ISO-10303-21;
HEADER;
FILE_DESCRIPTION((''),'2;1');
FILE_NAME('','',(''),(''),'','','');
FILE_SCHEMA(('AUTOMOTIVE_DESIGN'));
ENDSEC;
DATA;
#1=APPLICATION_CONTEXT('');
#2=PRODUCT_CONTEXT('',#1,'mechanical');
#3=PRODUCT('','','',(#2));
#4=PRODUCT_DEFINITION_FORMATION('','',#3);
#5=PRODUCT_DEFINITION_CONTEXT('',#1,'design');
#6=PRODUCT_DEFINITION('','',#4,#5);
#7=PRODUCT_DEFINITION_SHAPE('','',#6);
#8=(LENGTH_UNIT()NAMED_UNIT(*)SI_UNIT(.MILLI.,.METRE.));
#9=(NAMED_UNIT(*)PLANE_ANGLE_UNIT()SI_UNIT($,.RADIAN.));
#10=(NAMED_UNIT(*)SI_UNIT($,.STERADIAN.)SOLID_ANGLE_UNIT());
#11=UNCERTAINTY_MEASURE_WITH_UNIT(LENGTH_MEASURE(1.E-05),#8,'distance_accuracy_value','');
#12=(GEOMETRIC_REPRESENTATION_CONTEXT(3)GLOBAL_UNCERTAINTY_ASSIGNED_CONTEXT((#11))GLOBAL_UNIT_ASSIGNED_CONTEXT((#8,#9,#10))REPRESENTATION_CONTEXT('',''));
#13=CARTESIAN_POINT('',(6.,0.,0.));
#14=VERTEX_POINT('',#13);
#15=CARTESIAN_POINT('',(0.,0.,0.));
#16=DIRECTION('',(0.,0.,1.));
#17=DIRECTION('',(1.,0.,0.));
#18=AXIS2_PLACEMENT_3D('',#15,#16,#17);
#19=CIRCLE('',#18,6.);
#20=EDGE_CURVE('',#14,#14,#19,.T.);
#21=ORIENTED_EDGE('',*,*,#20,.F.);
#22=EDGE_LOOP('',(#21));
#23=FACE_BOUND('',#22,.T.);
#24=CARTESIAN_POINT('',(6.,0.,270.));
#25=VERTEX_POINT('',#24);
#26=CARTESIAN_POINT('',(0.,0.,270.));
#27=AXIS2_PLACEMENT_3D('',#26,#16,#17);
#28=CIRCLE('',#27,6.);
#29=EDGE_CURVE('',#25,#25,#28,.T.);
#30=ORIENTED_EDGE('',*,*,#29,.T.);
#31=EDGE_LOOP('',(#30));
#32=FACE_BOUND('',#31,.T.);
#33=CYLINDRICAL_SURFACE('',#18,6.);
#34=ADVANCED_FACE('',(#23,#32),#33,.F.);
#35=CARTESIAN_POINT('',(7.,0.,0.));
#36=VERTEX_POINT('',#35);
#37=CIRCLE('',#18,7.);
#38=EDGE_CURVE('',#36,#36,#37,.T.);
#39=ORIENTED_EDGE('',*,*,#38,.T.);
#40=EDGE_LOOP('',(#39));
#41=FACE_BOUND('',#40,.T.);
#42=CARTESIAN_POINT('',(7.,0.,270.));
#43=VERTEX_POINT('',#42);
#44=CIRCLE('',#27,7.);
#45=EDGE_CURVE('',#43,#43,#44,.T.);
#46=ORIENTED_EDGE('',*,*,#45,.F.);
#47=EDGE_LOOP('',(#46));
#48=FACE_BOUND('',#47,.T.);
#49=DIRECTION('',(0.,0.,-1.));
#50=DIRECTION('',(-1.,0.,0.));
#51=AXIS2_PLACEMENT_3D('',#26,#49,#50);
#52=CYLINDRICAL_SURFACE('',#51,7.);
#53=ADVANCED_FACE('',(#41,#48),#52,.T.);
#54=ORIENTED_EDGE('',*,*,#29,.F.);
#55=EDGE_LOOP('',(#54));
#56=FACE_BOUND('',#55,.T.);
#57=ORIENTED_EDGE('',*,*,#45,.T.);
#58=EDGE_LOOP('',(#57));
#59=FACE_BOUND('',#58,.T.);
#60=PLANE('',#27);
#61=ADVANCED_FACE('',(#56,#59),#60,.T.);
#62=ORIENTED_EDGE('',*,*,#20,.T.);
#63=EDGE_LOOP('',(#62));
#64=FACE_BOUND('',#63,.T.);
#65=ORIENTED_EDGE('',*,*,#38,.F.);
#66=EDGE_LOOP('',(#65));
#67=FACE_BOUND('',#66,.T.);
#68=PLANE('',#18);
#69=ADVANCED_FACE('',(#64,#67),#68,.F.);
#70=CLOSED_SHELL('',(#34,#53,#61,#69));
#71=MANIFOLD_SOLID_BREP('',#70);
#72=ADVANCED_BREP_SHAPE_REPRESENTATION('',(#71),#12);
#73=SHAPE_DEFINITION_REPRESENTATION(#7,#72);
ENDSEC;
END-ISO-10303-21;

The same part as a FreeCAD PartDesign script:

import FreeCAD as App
import Part
import Sketcher
from FreeCAD import Vector
Q = App.Units.Quantity

doc = App.newDocument("Part")
params = doc.addObject("Spreadsheet::Sheet", "Params")
for row, (alias, value) in enumerate([
    ("sketch1_diameter", "14 mm"),
    ("pad1_length", "270 mm"),
    ("sketch2_diameter", "12 mm"),
], start=1):
    params.set(f"A{row}", alias)
    params.set(f"B{row}", "=" + value)
    params.setAlias(f"B{row}", alias)

body = doc.addObject("PartDesign::Body", "Body")

sketch1 = body.newObject("Sketcher::SketchObject", "Sketch")
sketch1.AttachmentSupport = (doc.getObject("XY_Plane"), [""])
sketch1.MapMode = "FlatFace"
sketch1.addGeometry(Part.Circle(Vector(0, 0, 0), Vector(0, 0, 1), 7), False)
sketch1.addConstraint(Sketcher.Constraint("Coincident", 0, 3, -1, 1))
sketch1.addConstraint(Sketcher.Constraint("Diameter", 0, Q("14 mm")))
sketch1.setExpression("Constraints[1]", "Params.sketch1_diameter")
pad1 = body.newObject("PartDesign::Pad", "Pad")
pad1.Profile = sketch1
pad1.setExpression("Length", "Params.pad1_length")

sketch2 = body.newObject("Sketcher::SketchObject", "Sketch001")
sketch2.AttachmentSupport = (doc.getObject("XY_Plane"), [""])
sketch2.MapMode = "FlatFace"
sketch2.AttachmentOffset = App.Placement(Vector(0, 0, 270), App.Rotation())
sketch2.addGeometry(Part.Circle(Vector(0, 0, 0), Vector(0, 0, 1), 6), False)
sketch2.addConstraint(Sketcher.Constraint("Coincident", 0, 3, -1, 1))
sketch2.addConstraint(Sketcher.Constraint("Diameter", 0, Q("12 mm")))
sketch2.setExpression("Constraints[1]", "Params.sketch2_diameter")
pocket1 = body.newObject("PartDesign::Pocket", "Pocket")
pocket1.Profile = sketch2
pocket1.Type = "ThroughAll"

doc.recompute()
